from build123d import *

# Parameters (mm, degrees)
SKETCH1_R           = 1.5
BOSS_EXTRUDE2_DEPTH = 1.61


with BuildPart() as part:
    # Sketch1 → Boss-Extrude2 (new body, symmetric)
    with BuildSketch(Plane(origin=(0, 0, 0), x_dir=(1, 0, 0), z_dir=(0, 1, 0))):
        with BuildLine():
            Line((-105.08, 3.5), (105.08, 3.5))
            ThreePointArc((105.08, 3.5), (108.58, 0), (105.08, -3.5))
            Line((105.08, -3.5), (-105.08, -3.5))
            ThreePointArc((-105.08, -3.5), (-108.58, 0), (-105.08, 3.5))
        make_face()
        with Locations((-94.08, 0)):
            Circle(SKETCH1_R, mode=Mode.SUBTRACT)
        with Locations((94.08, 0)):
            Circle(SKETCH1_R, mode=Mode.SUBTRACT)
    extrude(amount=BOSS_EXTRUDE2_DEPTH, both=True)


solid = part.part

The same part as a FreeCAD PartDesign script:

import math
import FreeCAD as App
import Part
import Sketcher

V = App.Vector
Q = App.Units.Quantity

doc = App.newDocument("Part")
params = doc.addObject("Spreadsheet::Sheet", "Params")
for row, (alias, value) in enumerate([
    ("sketch1_diameter", "3 mm"),
    ("sketch1_radius", "3.5 mm"),
    ("sketch1_width", "210.16 mm"),
    ("pad1_length", "3.22 mm"),
], start=1):
    params.set(f"A{row}", alias)
    params.set(f"B{row}", "=" + value)
    params.setAlias(f"B{row}", alias)

body = doc.addObject("PartDesign::Body", "Body")

# Sketch on XZ plane
sketch1 = body.newObject("Sketcher::SketchObject", "Sketch")
sketch1.AttachmentSupport = (doc.getObject("XZ_Plane"), [""])
sketch1.MapMode = "FlatFace"
sketch1.addGeometry([
    Part.LineSegment(V(105.08, -3.5, 0), V(-105.08, -3.5, 0)),  # 0
    Part.ArcOfCircle(Part.Circle(V(-105.08, 0, 0), V(0, 0, 1), 3.5), math.radians(90), math.radians(270)),  # 1
    Part.LineSegment(V(-105.08, 3.5, 0), V(105.08, 3.5, 0)),  # 2
    Part.ArcOfCircle(Part.Circle(V(105.08, 0, 0), V(0, 0, 1), 3.5), math.radians(-90), math.radians(90)),  # 3
    Part.Circle(V(94.08, 0, 0), V(0, 0, 1), 1.5),  # 4
    Part.Circle(V(-94.08, 0, 0), V(0, 0, 1), 1.5),  # 5
], False)
sketch1.addConstraint([
    Sketcher.Constraint("Tangent", 0, 2, 1, 2),
    Sketcher.Constraint("Tangent", 1, 1, 2, 1),
    Sketcher.Constraint("Tangent", 2, 2, 3, 2),
    Sketcher.Constraint("Tangent", 3, 1, 0, 1),
    Sketcher.Constraint("Horizontal", 0),
    Sketcher.Constraint("Horizontal", 2),
    Sketcher.Constraint("Equal", 4, 5),
    Sketcher.Constraint("Symmetric", 1, 3, 3, 3, -1, 1),
    Sketcher.Constraint("Symmetric", 4, 3, 5, 3, -1, 1),
    Sketcher.Constraint("PointOnObject", 4, 3, -1),
    Sketcher.Constraint("Diameter", 4, Q("3 mm")),
    Sketcher.Constraint("Radius", 1, Q("3.5 mm")),
    Sketcher.Constraint("DistanceX", 4, 3, 3, 3, Q("11 mm")),
    Sketcher.Constraint("DistanceX", 0, 2, 0, 1, Q("210.16 mm")),
])
sketch1.setExpression("Constraints[10]", "Params.sketch1_diameter")
sketch1.setExpression("Constraints[11]", "Params.sketch1_radius")
sketch1.setExpression("Constraints[13]", "Params.sketch1_width")
pad1 = body.newObject("PartDesign::Pad", "Pad")
pad1.Profile = sketch1
pad1.setExpression("Length", "Params.pad1_length")
pad1.Midplane = True

doc.recompute()
